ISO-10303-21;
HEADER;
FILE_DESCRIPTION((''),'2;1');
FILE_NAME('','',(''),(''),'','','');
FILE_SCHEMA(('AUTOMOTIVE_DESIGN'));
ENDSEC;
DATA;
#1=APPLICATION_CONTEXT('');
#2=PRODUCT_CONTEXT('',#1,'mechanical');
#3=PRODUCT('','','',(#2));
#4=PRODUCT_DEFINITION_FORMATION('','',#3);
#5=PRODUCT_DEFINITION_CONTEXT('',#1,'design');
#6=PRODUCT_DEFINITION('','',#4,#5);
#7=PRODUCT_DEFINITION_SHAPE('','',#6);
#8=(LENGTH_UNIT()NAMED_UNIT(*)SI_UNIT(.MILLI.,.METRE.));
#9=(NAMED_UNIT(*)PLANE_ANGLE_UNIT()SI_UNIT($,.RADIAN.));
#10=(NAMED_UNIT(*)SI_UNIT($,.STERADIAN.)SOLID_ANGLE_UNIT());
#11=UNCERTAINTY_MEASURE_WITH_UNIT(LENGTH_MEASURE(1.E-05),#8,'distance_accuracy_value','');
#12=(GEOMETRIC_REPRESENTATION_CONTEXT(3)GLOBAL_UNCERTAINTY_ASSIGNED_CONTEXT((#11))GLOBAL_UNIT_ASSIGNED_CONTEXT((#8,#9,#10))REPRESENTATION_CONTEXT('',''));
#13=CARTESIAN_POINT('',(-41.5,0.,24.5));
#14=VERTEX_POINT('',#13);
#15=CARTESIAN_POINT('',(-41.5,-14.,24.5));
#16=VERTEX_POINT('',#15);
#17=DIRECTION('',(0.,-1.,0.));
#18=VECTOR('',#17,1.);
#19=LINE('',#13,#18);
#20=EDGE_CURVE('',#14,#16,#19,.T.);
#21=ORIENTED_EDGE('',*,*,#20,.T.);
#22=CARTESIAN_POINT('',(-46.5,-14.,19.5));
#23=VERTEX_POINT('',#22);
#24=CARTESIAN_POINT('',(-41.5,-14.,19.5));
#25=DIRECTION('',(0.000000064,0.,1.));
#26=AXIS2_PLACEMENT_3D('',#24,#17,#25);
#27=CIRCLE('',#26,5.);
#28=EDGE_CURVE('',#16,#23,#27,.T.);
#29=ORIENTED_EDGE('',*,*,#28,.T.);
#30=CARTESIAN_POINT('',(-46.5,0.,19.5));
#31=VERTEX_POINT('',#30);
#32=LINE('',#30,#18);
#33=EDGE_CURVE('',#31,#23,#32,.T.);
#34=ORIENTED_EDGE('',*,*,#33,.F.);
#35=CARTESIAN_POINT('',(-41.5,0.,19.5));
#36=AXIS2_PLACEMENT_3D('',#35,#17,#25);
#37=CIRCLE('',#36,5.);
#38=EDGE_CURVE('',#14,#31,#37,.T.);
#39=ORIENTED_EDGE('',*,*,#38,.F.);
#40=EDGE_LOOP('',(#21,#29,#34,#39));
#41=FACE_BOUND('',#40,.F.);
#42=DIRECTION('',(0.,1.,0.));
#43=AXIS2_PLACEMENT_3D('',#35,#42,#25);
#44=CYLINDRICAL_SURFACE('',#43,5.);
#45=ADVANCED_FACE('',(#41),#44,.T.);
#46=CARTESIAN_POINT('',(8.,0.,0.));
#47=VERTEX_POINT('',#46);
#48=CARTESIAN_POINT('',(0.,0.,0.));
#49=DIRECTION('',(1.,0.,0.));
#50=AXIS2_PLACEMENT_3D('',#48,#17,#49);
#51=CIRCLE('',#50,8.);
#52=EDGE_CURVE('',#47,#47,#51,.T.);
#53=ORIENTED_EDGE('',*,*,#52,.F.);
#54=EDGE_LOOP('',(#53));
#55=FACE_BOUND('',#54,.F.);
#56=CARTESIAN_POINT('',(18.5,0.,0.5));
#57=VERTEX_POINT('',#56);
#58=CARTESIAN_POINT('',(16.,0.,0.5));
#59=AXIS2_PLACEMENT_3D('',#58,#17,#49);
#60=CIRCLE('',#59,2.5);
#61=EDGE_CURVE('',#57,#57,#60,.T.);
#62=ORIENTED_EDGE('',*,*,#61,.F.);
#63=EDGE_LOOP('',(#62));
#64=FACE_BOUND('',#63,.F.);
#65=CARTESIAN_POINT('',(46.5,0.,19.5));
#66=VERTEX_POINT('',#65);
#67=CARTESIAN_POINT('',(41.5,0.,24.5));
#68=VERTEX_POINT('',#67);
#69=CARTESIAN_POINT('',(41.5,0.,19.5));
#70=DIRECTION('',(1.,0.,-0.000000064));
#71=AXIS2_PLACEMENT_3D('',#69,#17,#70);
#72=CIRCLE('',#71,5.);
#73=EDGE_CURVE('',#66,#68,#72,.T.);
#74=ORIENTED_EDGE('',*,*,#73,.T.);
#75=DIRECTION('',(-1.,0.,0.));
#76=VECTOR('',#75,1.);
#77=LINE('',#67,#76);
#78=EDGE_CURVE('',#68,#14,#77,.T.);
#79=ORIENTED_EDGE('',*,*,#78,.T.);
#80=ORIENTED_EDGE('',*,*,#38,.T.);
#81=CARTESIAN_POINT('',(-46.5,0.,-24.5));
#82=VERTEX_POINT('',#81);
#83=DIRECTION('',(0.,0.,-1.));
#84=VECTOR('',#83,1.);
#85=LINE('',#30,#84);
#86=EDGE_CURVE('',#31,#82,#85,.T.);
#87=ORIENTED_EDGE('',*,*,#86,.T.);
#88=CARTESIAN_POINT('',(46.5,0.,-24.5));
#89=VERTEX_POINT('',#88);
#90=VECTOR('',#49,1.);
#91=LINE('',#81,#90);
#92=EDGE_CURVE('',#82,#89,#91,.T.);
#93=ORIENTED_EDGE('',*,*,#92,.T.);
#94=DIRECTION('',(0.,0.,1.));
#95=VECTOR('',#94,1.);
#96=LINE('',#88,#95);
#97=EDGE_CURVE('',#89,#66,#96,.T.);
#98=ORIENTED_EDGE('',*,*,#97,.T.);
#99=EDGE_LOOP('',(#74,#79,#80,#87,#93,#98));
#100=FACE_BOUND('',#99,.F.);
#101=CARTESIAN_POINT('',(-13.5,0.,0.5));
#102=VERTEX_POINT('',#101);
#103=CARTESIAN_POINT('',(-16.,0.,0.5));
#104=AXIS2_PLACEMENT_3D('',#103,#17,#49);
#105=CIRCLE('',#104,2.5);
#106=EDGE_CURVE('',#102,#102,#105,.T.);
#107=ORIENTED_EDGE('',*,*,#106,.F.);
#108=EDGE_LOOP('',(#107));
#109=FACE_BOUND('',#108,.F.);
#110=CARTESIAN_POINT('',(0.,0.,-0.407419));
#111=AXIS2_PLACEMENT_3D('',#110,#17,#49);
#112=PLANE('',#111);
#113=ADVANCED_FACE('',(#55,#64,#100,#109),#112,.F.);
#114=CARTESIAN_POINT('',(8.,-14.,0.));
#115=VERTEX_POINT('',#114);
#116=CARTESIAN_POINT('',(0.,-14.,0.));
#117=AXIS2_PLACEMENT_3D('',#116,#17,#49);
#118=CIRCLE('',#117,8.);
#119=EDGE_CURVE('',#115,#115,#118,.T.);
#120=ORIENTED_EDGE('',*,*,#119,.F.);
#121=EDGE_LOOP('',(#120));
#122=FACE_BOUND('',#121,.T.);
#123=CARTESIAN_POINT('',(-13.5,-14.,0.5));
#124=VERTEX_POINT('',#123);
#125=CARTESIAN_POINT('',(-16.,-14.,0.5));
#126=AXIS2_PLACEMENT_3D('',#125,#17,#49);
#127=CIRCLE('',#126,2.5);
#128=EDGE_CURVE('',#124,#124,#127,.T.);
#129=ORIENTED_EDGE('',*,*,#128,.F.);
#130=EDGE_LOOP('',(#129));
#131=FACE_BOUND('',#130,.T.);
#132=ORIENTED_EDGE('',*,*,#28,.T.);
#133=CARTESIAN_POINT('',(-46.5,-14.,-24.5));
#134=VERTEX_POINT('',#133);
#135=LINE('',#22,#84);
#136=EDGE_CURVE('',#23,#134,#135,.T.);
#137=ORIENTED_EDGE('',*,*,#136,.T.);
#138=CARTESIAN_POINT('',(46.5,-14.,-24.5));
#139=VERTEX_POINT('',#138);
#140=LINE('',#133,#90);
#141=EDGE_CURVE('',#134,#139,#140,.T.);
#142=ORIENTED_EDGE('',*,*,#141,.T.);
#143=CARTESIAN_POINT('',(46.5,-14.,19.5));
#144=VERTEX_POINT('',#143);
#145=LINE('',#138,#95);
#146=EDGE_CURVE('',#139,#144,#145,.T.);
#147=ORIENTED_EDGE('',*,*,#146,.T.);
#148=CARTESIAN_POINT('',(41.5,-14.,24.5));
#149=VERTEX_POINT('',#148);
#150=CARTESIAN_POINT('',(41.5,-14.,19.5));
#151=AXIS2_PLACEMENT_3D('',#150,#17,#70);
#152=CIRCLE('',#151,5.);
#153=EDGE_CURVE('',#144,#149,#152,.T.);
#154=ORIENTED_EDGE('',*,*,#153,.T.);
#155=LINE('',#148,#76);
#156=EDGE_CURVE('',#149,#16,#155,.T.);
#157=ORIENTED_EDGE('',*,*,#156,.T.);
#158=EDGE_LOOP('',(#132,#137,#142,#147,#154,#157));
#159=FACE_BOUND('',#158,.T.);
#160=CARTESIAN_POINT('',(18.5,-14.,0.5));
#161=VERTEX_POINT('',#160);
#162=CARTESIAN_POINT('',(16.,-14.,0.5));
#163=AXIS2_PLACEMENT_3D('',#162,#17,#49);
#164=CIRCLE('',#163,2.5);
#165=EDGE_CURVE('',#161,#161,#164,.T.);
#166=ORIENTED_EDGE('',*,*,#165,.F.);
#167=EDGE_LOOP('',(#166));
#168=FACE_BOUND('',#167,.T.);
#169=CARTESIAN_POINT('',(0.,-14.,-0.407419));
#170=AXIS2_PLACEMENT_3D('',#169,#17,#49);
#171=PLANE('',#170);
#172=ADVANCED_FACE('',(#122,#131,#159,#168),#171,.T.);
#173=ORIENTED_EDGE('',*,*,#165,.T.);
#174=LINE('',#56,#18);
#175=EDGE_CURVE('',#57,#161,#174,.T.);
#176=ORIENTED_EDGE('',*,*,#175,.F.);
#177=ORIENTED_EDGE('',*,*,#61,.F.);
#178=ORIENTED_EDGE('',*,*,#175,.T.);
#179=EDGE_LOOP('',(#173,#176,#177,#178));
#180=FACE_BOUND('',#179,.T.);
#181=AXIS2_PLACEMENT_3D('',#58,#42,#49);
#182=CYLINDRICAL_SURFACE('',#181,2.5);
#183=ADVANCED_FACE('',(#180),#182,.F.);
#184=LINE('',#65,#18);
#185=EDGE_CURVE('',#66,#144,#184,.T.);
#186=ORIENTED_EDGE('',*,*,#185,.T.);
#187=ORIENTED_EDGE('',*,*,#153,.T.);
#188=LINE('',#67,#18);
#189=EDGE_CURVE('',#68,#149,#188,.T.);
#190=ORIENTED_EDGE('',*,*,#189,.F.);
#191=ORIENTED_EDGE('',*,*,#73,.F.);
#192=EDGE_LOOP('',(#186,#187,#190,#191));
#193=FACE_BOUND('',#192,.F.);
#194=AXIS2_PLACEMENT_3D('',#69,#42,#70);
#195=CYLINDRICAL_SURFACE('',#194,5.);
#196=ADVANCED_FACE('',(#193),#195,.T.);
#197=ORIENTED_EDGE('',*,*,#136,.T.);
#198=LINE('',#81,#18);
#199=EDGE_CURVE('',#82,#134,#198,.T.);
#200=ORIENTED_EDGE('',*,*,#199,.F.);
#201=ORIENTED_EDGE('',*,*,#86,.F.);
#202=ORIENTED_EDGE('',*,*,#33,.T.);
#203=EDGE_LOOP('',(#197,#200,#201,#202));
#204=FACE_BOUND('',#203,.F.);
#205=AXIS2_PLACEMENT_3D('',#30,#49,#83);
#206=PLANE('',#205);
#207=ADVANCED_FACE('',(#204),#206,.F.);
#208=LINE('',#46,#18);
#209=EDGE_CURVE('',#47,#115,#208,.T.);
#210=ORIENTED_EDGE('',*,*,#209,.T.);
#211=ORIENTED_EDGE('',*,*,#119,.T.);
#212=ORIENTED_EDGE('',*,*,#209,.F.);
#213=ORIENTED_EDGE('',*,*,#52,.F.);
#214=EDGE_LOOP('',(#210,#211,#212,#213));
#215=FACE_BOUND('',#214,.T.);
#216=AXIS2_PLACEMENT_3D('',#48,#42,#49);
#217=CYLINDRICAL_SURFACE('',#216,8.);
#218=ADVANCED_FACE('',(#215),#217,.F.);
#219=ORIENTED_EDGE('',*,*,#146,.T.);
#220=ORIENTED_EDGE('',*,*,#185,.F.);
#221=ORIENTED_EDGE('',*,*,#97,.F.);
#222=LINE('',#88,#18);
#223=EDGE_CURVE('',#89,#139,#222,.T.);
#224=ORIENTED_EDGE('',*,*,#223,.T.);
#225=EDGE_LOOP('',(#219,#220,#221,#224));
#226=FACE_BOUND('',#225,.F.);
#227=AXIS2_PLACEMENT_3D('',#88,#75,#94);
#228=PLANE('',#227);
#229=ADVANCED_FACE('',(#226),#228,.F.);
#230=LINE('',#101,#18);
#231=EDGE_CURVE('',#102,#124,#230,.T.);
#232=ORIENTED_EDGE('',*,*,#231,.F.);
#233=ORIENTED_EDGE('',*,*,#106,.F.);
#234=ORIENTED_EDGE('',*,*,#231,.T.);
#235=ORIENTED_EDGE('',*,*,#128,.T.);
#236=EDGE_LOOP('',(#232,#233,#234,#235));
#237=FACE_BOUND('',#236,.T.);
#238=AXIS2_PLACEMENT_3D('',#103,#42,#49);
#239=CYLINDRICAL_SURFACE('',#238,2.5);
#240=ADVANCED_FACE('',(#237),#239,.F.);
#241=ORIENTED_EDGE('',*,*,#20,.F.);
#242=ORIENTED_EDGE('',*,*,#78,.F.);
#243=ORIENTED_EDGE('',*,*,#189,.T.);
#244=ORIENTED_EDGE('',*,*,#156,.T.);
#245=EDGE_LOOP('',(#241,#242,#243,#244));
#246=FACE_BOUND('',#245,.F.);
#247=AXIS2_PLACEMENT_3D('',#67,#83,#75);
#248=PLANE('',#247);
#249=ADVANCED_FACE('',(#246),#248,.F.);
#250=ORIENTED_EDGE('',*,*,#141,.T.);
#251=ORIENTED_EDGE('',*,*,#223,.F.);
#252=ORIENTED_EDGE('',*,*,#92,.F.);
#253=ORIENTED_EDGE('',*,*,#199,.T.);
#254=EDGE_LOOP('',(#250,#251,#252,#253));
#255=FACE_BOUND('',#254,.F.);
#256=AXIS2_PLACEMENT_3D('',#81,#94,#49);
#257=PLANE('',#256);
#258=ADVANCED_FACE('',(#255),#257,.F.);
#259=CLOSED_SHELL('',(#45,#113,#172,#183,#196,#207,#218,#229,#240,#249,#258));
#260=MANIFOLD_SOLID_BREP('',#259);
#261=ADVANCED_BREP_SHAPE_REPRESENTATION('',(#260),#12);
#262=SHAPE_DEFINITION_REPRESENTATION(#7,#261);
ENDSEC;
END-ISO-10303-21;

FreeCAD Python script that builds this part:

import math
import FreeCAD as App
import Part
import Sketcher
from FreeCAD import Vector
Q = App.Units.Quantity

doc = App.newDocument("Part")
body = doc.addObject("PartDesign::Body", "Body")

# Sketch on XZ plane
sketch1 = body.newObject("Sketcher::SketchObject", "Sketch")
sketch1.AttachmentSupport = (doc.getObject("XZ_Plane"), [""])
sketch1.MapMode = "FlatFace"
sketch1.addGeometry(Part.LineSegment(Vector(-46.5, -24.5, 0), Vector(46.5, -24.5, 0)), False)
sketch1.addGeometry(Part.LineSegment(Vector(46.5, -24.5, 0), Vector(46.5, 19.5, 0)), False)
sketch1.addGeometry(Part.ArcOfCircle(Part.Circle(Vector(41.5, 19.5, 0), Vector(0, 0, 1), 5), math.radians(0), math.radians(90)), False)
sketch1.addGeometry(Part.LineSegment(Vector(41.5, 24.5, 0), Vector(-41.5, 24.5, 0)), False)
sketch1.addGeometry(Part.ArcOfCircle(Part.Circle(Vector(-41.5, 19.5, 0), Vector(0, 0, 1), 5), math.radians(90), math.radians(180)), False)
sketch1.addGeometry(Part.LineSegment(Vector(-46.5, 19.5, 0), Vector(-46.5, -24.5, 0)), False)
sketch1.addGeometry(Part.Circle(Vector(-16, 0.5, 0), Vector(0, 0, 1), 2.5), False)
sketch1.addGeometry(Part.Circle(Vector(0, 0, 0), Vector(0, 0, 1), 8), False)
sketch1.addGeometry(Part.Circle(Vector(16, 0.5, 0), Vector(0, 0, 1), 2.5), False)
sketch1.addConstraint(Sketcher.Constraint("Coincident", 0, 2, 1, 1))
sketch1.addConstraint(Sketcher.Constraint("Tangent", 1, 2, 2, 1))
sketch1.addConstraint(Sketcher.Constraint("Tangent", 2, 2, 3, 1))
sketch1.addConstraint(Sketcher.Constraint("Tangent", 3, 2, 4, 1))
sketch1.addConstraint(Sketcher.Constraint("Tangent", 4, 2, 5, 1))
sketch1.addConstraint(Sketcher.Constraint("Coincident", 5, 2, 0, 1))
sketch1.addConstraint(Sketcher.Constraint("Horizontal", 0))
sketch1.addConstraint(Sketcher.Constraint("Vertical", 1))
sketch1.addConstraint(Sketcher.Constraint("Horizontal", 3))
sketch1.addConstraint(Sketcher.Constraint("Vertical", 5))
sketch1.addConstraint(Sketcher.Constraint("Coincident", 7, 3, -1, 1))
sketch1.addConstraint(Sketcher.Constraint("Equal", 2, 4))
sketch1.addConstraint(Sketcher.Constraint("Equal", 6, 8))
sketch1.addConstraint(Sketcher.Constraint("Symmetric", 6, 3, 8, 3, -2))
sketch1.addConstraint(Sketcher.Constraint("Diameter", 6, Q("5 mm")))
sketch1.addConstraint(Sketcher.Constraint("Diameter", 7, Q("16 mm")))
sketch1.addConstraint(Sketcher.Constraint("Radius", 2, Q("5 mm")))
sketch1.addConstraint(Sketcher.Constraint("DistanceX", 0, 1, 0, 2, Q("93 mm")))
sketch1.addConstraint(Sketcher.Constraint("DistanceY", 1, 1, 1, 2, Q("44 mm")))
sketch1.addConstraint(Sketcher.Constraint("DistanceX", 6, 3, -1, 1, Q("16 mm")))
sketch1.addConstraint(Sketcher.Constraint("DistanceY", 6, 3, 4, 3, Q("19 mm")))
sketch1.addConstraint(Sketcher.Constraint("DistanceX", -1, 1, 2, 3, Q("41.5 mm")))
sketch1.addConstraint(Sketcher.Constraint("DistanceY", -1, 1, 2, 3, Q("19.5 mm")))
pad1 = body.newObject("PartDesign::Pad", "Pad")
pad1.Profile = sketch1
pad1.Length = 14

doc.recompute()
